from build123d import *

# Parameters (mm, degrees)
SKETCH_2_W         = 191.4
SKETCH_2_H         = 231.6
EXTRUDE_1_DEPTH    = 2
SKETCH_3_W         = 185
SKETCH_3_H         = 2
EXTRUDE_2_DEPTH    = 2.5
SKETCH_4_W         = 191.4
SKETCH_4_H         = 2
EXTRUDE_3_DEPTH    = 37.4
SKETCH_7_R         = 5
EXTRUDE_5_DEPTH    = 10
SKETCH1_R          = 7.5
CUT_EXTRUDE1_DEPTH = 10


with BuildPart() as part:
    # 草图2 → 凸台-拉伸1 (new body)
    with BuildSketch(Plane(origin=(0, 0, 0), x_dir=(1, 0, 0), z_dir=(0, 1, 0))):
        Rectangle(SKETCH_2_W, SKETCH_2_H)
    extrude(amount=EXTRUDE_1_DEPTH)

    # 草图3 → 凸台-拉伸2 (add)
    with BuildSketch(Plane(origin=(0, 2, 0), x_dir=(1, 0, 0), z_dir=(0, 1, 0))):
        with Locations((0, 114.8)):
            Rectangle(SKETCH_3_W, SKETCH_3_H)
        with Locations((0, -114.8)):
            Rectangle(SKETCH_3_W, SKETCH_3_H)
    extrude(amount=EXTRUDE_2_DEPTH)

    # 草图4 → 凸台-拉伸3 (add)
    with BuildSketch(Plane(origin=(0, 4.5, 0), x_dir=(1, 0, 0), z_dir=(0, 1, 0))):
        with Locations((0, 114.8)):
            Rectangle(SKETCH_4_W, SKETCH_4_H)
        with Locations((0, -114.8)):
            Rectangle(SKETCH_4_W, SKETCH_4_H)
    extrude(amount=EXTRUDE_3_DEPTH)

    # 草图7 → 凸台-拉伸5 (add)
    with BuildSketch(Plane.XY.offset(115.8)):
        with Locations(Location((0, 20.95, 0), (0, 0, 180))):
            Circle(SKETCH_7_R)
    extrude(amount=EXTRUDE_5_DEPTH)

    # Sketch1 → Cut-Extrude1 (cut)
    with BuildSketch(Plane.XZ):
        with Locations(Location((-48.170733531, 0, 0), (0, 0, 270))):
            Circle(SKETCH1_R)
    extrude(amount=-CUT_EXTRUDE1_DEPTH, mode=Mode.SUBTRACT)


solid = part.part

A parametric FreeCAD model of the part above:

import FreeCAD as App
import Part
import Sketcher
from FreeCAD import Vector
Q = App.Units.Quantity


def add_polygon(sketch, points):
    """Adds a closed chain of lines whose ends are joined by coincident constraints."""
    first, n = sketch.GeometryCount, len(points)
    for a, b in zip(points, points[1:] + points[:1]):
        sketch.addGeometry(Part.LineSegment(App.Vector(*a, 0), App.Vector(*b, 0)), False)
    for i in range(n):
        sketch.addConstraint(Sketcher.Constraint("Coincident", first + i, 2, first + (i + 1) % n, 1))

doc = App.newDocument("Part")
body = doc.addObject("PartDesign::Body", "Body")

sketch1 = body.newObject("Sketcher::SketchObject", "Sketch")
sketch1.AttachmentSupport = (doc.getObject("XZ_Plane"), [""])
sketch1.MapMode = "FlatFace"
add_polygon(sketch1, [(-96, -116), (-96, 116), (96, 116), (96, -116)])
sketch1.addConstraint(Sketcher.Constraint("Vertical", 0))
sketch1.addConstraint(Sketcher.Constraint("Horizontal", 1))
sketch1.addConstraint(Sketcher.Constraint("Vertical", 2))
sketch1.addConstraint(Sketcher.Constraint("Horizontal", 3))
sketch1.addConstraint(Sketcher.Constraint("Symmetric", 0, 2, 2, 2, -1, 1))
sketch1.addConstraint(Sketcher.Constraint("DistanceX", 1, 1, 1, 2, Q("191.4 mm")))
sketch1.addConstraint(Sketcher.Constraint("DistanceY", 0, 1, 0, 2, Q("231.6 mm")))
pad1 = body.newObject("PartDesign::Pad", "Pad")
pad1.Profile = sketch1
pad1.Length = 2
pad1.Reversed = True

sketch2 = body.newObject("Sketcher::SketchObject", "Sketch001")
sketch2.AttachmentSupport = (doc.getObject("XZ_Plane"), [""])
sketch2.MapMode = "FlatFace"
sketch2.AttachmentOffset = App.Placement(Vector(0, 0, -2), App.Rotation())
add_polygon(sketch2, [(-92.5, -115.8), (-92.5, -113.8), (92.5, -113.8), (92.5, -115.8)])
add_polygon(sketch2, [(-92.5, 113.8), (-92.5, 115.8), (92.5, 115.8), (92.5, 113.8)])
sketch2.addConstraint(Sketcher.Constraint("Vertical", 0))
sketch2.addConstraint(Sketcher.Constraint("Horizontal", 1))
sketch2.addConstraint(Sketcher.Constraint("Vertical", 2))
sketch2.addConstraint(Sketcher.Constraint("Horizontal", 3))
sketch2.addConstraint(Sketcher.Constraint("Vertical", 4))
sketch2.addConstraint(Sketcher.Constraint("Horizontal", 5))
sketch2.addConstraint(Sketcher.Constraint("Vertical", 6))
sketch2.addConstraint(Sketcher.Constraint("Horizontal", 7))
sketch2.addConstraint(Sketcher.Constraint("Symmetric", 2, 2, 4, 2, -1, 1))
sketch2.addConstraint(Sketcher.Constraint("Symmetric", 0, 2, 6, 2, -1, 1))
sketch2.addConstraint(Sketcher.Constraint("Vertical", 3, 2, 4, 2))
sketch2.addConstraint(Sketcher.Constraint("DistanceX", 1, 1, 1, 2, Q("185 mm")))
sketch2.addConstraint(Sketcher.Constraint("DistanceY", 0, 1, 0, 2, Q("2 mm")))
sketch2.addConstraint(Sketcher.Constraint("DistanceY", 0, 2, -1, 1, Q("113.8 mm")))
pad2 = body.newObject("PartDesign::Pad", "Pad001")
pad2.Profile = sketch2
pad2.Length = 2.5
pad2.Reversed = True

sketch3 = body.newObject("Sketcher::SketchObject", "Sketch002")
sketch3.AttachmentSupport = (doc.getObject("XZ_Plane"), [""])
sketch3.MapMode = "FlatFace"
sketch3.AttachmentOffset = App.Placement(Vector(0, 0, -4.5), App.Rotation())
add_polygon(sketch3, [(-95.7, -115.8), (-95.7, -113.8), (95.7, -113.8), (95.7, -115.8)])
add_polygon(sketch3, [(-95.7, 113.8), (-95.7, 115.8), (95.7, 115.8), (95.7, 113.8)])
sketch3.addConstraint(Sketcher.Constraint("Vertical", 0))
sketch3.addConstraint(Sketcher.Constraint("Horizontal", 1))
sketch3.addConstraint(Sketcher.Constraint("Vertical", 2))
sketch3.addConstraint(Sketcher.Constraint("Horizontal", 3))
sketch3.addConstraint(Sketcher.Constraint("Vertical", 4))
sketch3.addConstraint(Sketcher.Constraint("Horizontal", 5))
sketch3.addConstraint(Sketcher.Constraint("Vertical", 6))
sketch3.addConstraint(Sketcher.Constraint("Horizontal", 7))
sketch3.addConstraint(Sketcher.Constraint("Symmetric", 2, 2, 4, 2, -1, 1))
sketch3.addConstraint(Sketcher.Constraint("Symmetric", 0, 2, 6, 2, -1, 1))
sketch3.addConstraint(Sketcher.Constraint("Vertical", 3, 2, 4, 2))
sketch3.addConstraint(Sketcher.Constraint("DistanceY", 0, 1, 0, 2, Q("2 mm")))
sketch3.addConstraint(Sketcher.Constraint("DistanceX", 1, 1, 1, 2, Q("191.4 mm")))
sketch3.addConstraint(Sketcher.Constraint("DistanceY", 0, 2, -1, 1, Q("113.8 mm")))
pad3 = body.newObject("PartDesign::Pad", "Pad002")
pad3.Profile = sketch3
pad3.Length = 37.4
pad3.Reversed = True

sketch4 = body.newObject("Sketcher::SketchObject", "Sketch003")
sketch4.AttachmentSupport = (doc.getObject("XY_Plane"), [""])
sketch4.MapMode = "FlatFace"
sketch4.AttachmentOffset = App.Placement(Vector(0, 0, 115.8), App.Rotation())
sketch4.addGeometry(Part.Circle(Vector(0, 21, 0), Vector(0, 0, 1), 5), False)
sketch4.addConstraint(Sketcher.Constraint("PointOnObject", 0, 3, -2))
sketch4.addConstraint(Sketcher.Constraint("Diameter", 0, Q("10 mm")))
sketch4.addConstraint(Sketcher.Constraint("DistanceY", -1, 1, 0, 3, Q("20.95 mm")))
pad4 = body.newObject("PartDesign::Pad", "Pad003")
pad4.Profile = sketch4
pad4.Length = 10

sketch5 = body.newObject("Sketcher::SketchObject", "Sketch004")
sketch5.AttachmentSupport = (doc.getObject("XZ_Plane"), [""])
sketch5.MapMode = "FlatFace"
sketch5.addGeometry(Part.Circle(Vector(-48, 0, 0), Vector(0, 0, 1), 8), False)
sketch5.addConstraint(Sketcher.Constraint("PointOnObject", 0, 3, -1))
sketch5.addConstraint(Sketcher.Constraint("Diameter", 0, Q("15 mm")))
sketch5.addConstraint(Sketcher.Constraint("DistanceX", 0, 3, -1, 1, Q("48.170734 mm")))
pocket1 = body.newObject("PartDesign::Pocket", "Pocket")
pocket1.Profile = sketch5
pocket1.Length = 10

doc.recompute()
